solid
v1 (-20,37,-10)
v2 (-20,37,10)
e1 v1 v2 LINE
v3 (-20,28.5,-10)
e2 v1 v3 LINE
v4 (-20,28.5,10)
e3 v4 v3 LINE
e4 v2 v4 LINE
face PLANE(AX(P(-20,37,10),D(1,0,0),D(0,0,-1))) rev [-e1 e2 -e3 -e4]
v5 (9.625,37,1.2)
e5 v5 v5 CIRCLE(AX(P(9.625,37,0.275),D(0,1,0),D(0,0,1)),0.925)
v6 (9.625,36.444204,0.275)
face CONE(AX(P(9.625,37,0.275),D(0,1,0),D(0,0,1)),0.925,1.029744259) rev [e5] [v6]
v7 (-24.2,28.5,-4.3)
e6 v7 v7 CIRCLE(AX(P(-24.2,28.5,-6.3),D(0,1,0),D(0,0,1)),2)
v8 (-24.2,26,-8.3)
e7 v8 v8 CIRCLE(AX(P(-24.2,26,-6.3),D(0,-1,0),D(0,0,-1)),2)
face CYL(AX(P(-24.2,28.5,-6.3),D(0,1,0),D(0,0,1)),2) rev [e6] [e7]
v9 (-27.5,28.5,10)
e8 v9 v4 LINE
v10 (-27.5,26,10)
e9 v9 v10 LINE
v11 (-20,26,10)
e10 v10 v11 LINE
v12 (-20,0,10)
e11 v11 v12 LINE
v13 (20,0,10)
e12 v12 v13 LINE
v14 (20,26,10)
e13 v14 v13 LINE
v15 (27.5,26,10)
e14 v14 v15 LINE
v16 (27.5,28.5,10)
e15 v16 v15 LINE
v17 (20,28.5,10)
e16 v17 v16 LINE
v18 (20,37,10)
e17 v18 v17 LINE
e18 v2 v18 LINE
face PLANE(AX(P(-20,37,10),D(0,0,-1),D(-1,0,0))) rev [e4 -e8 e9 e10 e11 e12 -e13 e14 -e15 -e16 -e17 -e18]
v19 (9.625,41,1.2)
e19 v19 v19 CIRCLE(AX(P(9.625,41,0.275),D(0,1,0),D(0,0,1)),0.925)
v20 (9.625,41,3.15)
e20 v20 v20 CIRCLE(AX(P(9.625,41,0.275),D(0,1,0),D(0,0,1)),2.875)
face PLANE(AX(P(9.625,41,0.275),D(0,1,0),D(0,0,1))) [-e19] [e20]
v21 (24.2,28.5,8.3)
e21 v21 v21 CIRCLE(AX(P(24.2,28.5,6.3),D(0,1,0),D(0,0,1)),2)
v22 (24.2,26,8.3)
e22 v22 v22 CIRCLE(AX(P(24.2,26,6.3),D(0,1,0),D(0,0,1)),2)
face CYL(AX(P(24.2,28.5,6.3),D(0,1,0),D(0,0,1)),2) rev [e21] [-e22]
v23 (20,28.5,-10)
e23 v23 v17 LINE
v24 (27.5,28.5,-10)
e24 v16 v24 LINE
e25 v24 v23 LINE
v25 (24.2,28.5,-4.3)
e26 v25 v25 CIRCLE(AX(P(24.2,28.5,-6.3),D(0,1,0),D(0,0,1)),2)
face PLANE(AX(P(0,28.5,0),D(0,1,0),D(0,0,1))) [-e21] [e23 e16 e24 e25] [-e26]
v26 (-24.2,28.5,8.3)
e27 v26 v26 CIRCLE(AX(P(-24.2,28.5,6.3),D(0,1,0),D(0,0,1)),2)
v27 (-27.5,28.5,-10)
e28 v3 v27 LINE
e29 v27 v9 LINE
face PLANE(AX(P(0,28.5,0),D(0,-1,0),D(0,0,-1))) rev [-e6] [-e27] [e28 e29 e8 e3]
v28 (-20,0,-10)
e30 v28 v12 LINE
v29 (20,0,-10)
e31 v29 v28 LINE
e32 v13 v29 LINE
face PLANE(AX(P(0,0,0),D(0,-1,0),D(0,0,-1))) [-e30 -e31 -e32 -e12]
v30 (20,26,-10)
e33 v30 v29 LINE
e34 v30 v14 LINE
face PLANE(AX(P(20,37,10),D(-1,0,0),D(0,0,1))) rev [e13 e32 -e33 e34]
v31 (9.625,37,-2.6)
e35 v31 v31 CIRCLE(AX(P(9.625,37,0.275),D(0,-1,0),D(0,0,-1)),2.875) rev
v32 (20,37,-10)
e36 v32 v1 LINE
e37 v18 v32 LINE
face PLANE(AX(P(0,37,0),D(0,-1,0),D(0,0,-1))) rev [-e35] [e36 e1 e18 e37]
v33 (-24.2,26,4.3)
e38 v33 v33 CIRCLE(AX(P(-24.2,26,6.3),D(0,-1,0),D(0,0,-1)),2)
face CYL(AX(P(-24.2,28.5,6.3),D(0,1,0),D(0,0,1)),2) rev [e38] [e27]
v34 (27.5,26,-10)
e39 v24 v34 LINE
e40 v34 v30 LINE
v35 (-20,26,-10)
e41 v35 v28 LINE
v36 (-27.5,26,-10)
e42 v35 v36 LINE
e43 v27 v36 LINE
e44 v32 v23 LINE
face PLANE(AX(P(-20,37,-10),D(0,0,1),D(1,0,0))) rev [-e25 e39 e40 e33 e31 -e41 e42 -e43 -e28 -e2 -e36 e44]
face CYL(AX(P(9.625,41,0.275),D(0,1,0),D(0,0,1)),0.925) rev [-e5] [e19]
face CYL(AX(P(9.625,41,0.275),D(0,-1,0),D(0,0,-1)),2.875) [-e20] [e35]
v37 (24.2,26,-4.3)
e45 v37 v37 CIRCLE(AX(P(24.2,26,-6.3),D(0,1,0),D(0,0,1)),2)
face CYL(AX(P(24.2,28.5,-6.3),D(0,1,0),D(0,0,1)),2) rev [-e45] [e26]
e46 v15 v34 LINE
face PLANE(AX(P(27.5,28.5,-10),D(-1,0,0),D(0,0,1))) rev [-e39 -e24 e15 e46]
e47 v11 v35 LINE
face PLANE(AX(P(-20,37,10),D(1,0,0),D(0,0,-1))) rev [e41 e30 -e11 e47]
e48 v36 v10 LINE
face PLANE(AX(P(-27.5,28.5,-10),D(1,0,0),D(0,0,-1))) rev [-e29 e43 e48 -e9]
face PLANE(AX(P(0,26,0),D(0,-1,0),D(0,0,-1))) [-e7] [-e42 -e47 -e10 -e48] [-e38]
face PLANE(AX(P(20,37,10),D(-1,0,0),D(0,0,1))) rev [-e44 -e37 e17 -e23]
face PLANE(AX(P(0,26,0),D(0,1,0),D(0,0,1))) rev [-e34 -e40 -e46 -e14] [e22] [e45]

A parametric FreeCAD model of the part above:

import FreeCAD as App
import Part
import Sketcher
Q = App.Units.Quantity

doc = App.newDocument("Part")
params = doc.addObject("Spreadsheet::Sheet", "Params")
for row, (alias, value) in enumerate([
    ("sketch1_width", "40 mm"),
    ("sketch1_height", "20 mm"),
    ("pad1_length", "37 mm"),
    ("sketch2_height", "20 mm"),
    ("sketch2_width", "7.5 mm"),
    ("pad2_length", "2.5 mm"),
    ("sketch3_diameter", "4 mm"),
    ("hole_diameter", "4 mm"),
    ("sketch4_diameter", "5.75 mm"),
    ("pad3_length", "4 mm"),
    ("sketch5_diameter", "1.85 mm"),
    ("hole2_diameter", "1.85 mm"),
    ("hole2_depth", "4 mm"),
], start=1):
    params.set(f"A{row}", alias)
    params.set(f"B{row}", "=" + value)
    params.setAlias(f"B{row}", alias)

body = doc.addObject("PartDesign::Body", "Body")

sketch1 = body.newObject("Sketcher::SketchObject", "Sketch")
sketch1.AttachmentSupport = (doc.getObject("XZ_Plane"), [""])
sketch1.MapMode = "FlatFace"
sketch1.addGeometry([
    Part.LineSegment(App.Vector(-20, -10, 0), App.Vector(-20, 10, 0)),
    Part.LineSegment(App.Vector(-20, 10, 0), App.Vector(20, 10, 0)),
    Part.LineSegment(App.Vector(20, 10, 0), App.Vector(20, -10, 0)),
    Part.LineSegment(App.Vector(20, -10, 0), App.Vector(-20, -10, 0)),
], False)
sketch1.addConstraint([
    Sketcher.Constraint("Coincident", 0, 2, 1, 1),
    Sketcher.Constraint("Coincident", 1, 2, 2, 1),
    Sketcher.Constraint("Coincident", 2, 2, 3, 1),
    Sketcher.Constraint("Coincident", 3, 2, 0, 1),
    Sketcher.Constraint("Vertical", 0),
    Sketcher.Constraint("Horizontal", 1),
    Sketcher.Constraint("Vertical", 2),
    Sketcher.Constraint("Horizontal", 3),
    Sketcher.Constraint("Symmetric", 0, 2, 2, 2, -1, 1),
    Sketcher.Constraint("DistanceX", 1, 1, 1, 2, Q("40 mm")),
    Sketcher.Constraint("DistanceY", 0, 1, 0, 2, Q("20 mm")),
])
sketch1.setExpression("Constraints[9]", "Params.sketch1_width")
sketch1.setExpression("Constraints[10]", "Params.sketch1_height")
pad1 = body.newObject("PartDesign::Pad", "Pad")
pad1.Profile = sketch1
pad1.setExpression("Length", "Params.pad1_length")
pad1.Reversed = True

sketch2 = body.newObject("Sketcher::SketchObject", "Sketch001")
sketch2.AttachmentSupport = (doc.getObject("XZ_Plane"), [""])
sketch2.MapMode = "FlatFace"
sketch2.AttachmentOffset = App.Placement(App.Vector(0, 0, -26), App.Rotation())
sketch2.addGeometry([
    Part.LineSegment(App.Vector(20, -10, 0), App.Vector(20, 10, 0)),
    Part.LineSegment(App.Vector(20, 10, 0), App.Vector(27.5, 10, 0)),
    Part.LineSegment(App.Vector(27.5, 10, 0), App.Vector(27.5, -10, 0)),
    Part.LineSegment(App.Vector(27.5, -10, 0), App.Vector(20, -10, 0)),
    Part.LineSegment(App.Vector(-27.5, -10, 0), App.Vector(-27.5, 10, 0)),
    Part.LineSegment(App.Vector(-27.5, 10, 0), App.Vector(-20, 10, 0)),
    Part.LineSegment(App.Vector(-20, 10, 0), App.Vector(-20, -10, 0)),
    Part.LineSegment(App.Vector(-20, -10, 0), App.Vector(-27.5, -10, 0)),
], False)
sketch2.addConstraint([
    Sketcher.Constraint("Coincident", 0, 2, 1, 1),
    Sketcher.Constraint("Coincident", 1, 2, 2, 1),
    Sketcher.Constraint("Coincident", 2, 2, 3, 1),
    Sketcher.Constraint("Coincident", 3, 2, 0, 1),
    Sketcher.Constraint("Coincident", 4, 2, 5, 1),
    Sketcher.Constraint("Coincident", 5, 2, 6, 1),
    Sketcher.Constraint("Coincident", 6, 2, 7, 1),
    Sketcher.Constraint("Coincident", 7, 2, 4, 1),
    Sketcher.Constraint("Vertical", 0),
    Sketcher.Constraint("Horizontal", 1),
    Sketcher.Constraint("Vertical", 2),
    Sketcher.Constraint("Horizontal", 3),
    Sketcher.Constraint("Vertical", 4),
    Sketcher.Constraint("Horizontal", 5),
    Sketcher.Constraint("Vertical", 6),
    Sketcher.Constraint("Horizontal", 7),
    Sketcher.Constraint("Symmetric", 2, 2, 4, 2, -1, 1),
    Sketcher.Constraint("Symmetric", 0, 2, 6, 2, -1, 1),
    Sketcher.Constraint("Horizontal", 1, 2, 4, 2),
    Sketcher.Constraint("DistanceY", 0, 1, 0, 2, Q("20 mm")),
    Sketcher.Constraint("DistanceX", 1, 1, 1, 2, Q("7.5 mm")),
    Sketcher.Constraint("DistanceX", -1, 1, 0, 2, Q("20 mm")),
])
sketch2.setExpression("Constraints[19]", "Params.sketch2_height")
sketch2.setExpression("Constraints[20]", "Params.sketch2_width")
pad2 = body.newObject("PartDesign::Pad", "Pad001")
pad2.Profile = sketch2
pad2.setExpression("Length", "Params.pad2_length")
pad2.Reversed = True

sketch3 = body.newObject("Sketcher::SketchObject", "Sketch002")
sketch3.AttachmentSupport = (doc.getObject("XZ_Plane"), [""])
sketch3.MapMode = "FlatFace"
sketch3.AttachmentOffset = App.Placement(App.Vector(0, 0, -28.5), App.Rotation())
sketch3.addGeometry([
    Part.Circle(App.Vector(-24.2, 6.3, 0), App.Vector(0, 0, 1), 2),
    Part.Circle(App.Vector(-24.2, -6.3, 0), App.Vector(0, 0, 1), 2),
    Part.Circle(App.Vector(24.2, -6.3, 0), App.Vector(0, 0, 1), 2),
    Part.Circle(App.Vector(24.2, 6.3, 0), App.Vector(0, 0, 1), 2),
], False)
sketch3.addConstraint([
    Sketcher.Constraint("Equal", 0, 1),
    Sketcher.Constraint("Equal", 1, 2),
    Sketcher.Constraint("Equal", 2, 3),
    Sketcher.Constraint("Symmetric", 0, 3, 2, 3, -1, 1),
    Sketcher.Constraint("Symmetric", 1, 3, 3, 3, -1, 1),
    Sketcher.Constraint("Symmetric", 1, 3, 2, 3, -2),
    Sketcher.Constraint("Diameter", 0, Q("4 mm")),
    Sketcher.Constraint("DistanceX", 0, 3, -1, 1, Q("24.2 mm")),
    Sketcher.Constraint("DistanceY", -1, 1, 0, 3, Q("6.3 mm")),
])
sketch3.setExpression("Constraints[6]", "Params.sketch3_diameter")
doc.recompute()
hole = body.newObject("PartDesign::Hole", "Hole")
hole.Profile = sketch3
hole.ThreadType = "None"
hole.setExpression("Diameter", "Params.hole_diameter")
hole.DepthType = "ThroughAll"
hole.Reversed = True

sketch4 = body.newObject("Sketcher::SketchObject", "Sketch003")
sketch4.AttachmentSupport = (doc.getObject("XZ_Plane"), [""])
sketch4.MapMode = "FlatFace"
sketch4.AttachmentOffset = App.Placement(App.Vector(0, 0, -37), App.Rotation())
sketch4.addGeometry(Part.Circle(App.Vector(9.625, 0.275, 0), App.Vector(0, 0, 1), 2.875), False)
sketch4.addConstraint([
    Sketcher.Constraint("Diameter", 0, Q("5.75 mm")),
    Sketcher.Constraint("DistanceX", -1, 1, 0, 3, Q("9.625 mm")),
    Sketcher.Constraint("DistanceY", -1, 1, 0, 3, Q("0.275 mm")),
])
sketch4.setExpression("Constraints[0]", "Params.sketch4_diameter")
pad3 = body.newObject("PartDesign::Pad", "Pad002")
pad3.Profile = sketch4
pad3.setExpression("Length", "Params.pad3_length")
pad3.Reversed = True

sketch5 = body.newObject("Sketcher::SketchObject", "Sketch004")
sketch5.AttachmentSupport = (doc.getObject("XZ_Plane"), [""])
sketch5.MapMode = "FlatFace"
sketch5.AttachmentOffset = App.Placement(App.Vector(0, 0, -41), App.Rotation())
sketch5.addGeometry(Part.Circle(App.Vector(9.625, 0.275, 0), App.Vector(0, 0, 1), 0.925), False)
sketch5.addConstraint([
    Sketcher.Constraint("Diameter", 0, Q("1.85 mm")),
    Sketcher.Constraint("DistanceX", -1, 1, 0, 3, Q("9.625 mm")),
    Sketcher.Constraint("DistanceY", -1, 1, 0, 3, Q("0.275 mm")),
])
sketch5.setExpression("Constraints[0]", "Params.sketch5_diameter")
doc.recompute()
hole2 = body.newObject("PartDesign::Hole", "Hole001")
hole2.Profile = sketch5
hole2.ThreadType = "None"
hole2.setExpression("Diameter", "Params.hole2_diameter")
hole2.DepthType = "Dimension"
hole2.setExpression("Depth", "Params.hole2_depth")
hole2.DrillPoint = "Angled"
hole2.DrillPointAngle = 118
hole2.Reversed = True

doc.recompute()
